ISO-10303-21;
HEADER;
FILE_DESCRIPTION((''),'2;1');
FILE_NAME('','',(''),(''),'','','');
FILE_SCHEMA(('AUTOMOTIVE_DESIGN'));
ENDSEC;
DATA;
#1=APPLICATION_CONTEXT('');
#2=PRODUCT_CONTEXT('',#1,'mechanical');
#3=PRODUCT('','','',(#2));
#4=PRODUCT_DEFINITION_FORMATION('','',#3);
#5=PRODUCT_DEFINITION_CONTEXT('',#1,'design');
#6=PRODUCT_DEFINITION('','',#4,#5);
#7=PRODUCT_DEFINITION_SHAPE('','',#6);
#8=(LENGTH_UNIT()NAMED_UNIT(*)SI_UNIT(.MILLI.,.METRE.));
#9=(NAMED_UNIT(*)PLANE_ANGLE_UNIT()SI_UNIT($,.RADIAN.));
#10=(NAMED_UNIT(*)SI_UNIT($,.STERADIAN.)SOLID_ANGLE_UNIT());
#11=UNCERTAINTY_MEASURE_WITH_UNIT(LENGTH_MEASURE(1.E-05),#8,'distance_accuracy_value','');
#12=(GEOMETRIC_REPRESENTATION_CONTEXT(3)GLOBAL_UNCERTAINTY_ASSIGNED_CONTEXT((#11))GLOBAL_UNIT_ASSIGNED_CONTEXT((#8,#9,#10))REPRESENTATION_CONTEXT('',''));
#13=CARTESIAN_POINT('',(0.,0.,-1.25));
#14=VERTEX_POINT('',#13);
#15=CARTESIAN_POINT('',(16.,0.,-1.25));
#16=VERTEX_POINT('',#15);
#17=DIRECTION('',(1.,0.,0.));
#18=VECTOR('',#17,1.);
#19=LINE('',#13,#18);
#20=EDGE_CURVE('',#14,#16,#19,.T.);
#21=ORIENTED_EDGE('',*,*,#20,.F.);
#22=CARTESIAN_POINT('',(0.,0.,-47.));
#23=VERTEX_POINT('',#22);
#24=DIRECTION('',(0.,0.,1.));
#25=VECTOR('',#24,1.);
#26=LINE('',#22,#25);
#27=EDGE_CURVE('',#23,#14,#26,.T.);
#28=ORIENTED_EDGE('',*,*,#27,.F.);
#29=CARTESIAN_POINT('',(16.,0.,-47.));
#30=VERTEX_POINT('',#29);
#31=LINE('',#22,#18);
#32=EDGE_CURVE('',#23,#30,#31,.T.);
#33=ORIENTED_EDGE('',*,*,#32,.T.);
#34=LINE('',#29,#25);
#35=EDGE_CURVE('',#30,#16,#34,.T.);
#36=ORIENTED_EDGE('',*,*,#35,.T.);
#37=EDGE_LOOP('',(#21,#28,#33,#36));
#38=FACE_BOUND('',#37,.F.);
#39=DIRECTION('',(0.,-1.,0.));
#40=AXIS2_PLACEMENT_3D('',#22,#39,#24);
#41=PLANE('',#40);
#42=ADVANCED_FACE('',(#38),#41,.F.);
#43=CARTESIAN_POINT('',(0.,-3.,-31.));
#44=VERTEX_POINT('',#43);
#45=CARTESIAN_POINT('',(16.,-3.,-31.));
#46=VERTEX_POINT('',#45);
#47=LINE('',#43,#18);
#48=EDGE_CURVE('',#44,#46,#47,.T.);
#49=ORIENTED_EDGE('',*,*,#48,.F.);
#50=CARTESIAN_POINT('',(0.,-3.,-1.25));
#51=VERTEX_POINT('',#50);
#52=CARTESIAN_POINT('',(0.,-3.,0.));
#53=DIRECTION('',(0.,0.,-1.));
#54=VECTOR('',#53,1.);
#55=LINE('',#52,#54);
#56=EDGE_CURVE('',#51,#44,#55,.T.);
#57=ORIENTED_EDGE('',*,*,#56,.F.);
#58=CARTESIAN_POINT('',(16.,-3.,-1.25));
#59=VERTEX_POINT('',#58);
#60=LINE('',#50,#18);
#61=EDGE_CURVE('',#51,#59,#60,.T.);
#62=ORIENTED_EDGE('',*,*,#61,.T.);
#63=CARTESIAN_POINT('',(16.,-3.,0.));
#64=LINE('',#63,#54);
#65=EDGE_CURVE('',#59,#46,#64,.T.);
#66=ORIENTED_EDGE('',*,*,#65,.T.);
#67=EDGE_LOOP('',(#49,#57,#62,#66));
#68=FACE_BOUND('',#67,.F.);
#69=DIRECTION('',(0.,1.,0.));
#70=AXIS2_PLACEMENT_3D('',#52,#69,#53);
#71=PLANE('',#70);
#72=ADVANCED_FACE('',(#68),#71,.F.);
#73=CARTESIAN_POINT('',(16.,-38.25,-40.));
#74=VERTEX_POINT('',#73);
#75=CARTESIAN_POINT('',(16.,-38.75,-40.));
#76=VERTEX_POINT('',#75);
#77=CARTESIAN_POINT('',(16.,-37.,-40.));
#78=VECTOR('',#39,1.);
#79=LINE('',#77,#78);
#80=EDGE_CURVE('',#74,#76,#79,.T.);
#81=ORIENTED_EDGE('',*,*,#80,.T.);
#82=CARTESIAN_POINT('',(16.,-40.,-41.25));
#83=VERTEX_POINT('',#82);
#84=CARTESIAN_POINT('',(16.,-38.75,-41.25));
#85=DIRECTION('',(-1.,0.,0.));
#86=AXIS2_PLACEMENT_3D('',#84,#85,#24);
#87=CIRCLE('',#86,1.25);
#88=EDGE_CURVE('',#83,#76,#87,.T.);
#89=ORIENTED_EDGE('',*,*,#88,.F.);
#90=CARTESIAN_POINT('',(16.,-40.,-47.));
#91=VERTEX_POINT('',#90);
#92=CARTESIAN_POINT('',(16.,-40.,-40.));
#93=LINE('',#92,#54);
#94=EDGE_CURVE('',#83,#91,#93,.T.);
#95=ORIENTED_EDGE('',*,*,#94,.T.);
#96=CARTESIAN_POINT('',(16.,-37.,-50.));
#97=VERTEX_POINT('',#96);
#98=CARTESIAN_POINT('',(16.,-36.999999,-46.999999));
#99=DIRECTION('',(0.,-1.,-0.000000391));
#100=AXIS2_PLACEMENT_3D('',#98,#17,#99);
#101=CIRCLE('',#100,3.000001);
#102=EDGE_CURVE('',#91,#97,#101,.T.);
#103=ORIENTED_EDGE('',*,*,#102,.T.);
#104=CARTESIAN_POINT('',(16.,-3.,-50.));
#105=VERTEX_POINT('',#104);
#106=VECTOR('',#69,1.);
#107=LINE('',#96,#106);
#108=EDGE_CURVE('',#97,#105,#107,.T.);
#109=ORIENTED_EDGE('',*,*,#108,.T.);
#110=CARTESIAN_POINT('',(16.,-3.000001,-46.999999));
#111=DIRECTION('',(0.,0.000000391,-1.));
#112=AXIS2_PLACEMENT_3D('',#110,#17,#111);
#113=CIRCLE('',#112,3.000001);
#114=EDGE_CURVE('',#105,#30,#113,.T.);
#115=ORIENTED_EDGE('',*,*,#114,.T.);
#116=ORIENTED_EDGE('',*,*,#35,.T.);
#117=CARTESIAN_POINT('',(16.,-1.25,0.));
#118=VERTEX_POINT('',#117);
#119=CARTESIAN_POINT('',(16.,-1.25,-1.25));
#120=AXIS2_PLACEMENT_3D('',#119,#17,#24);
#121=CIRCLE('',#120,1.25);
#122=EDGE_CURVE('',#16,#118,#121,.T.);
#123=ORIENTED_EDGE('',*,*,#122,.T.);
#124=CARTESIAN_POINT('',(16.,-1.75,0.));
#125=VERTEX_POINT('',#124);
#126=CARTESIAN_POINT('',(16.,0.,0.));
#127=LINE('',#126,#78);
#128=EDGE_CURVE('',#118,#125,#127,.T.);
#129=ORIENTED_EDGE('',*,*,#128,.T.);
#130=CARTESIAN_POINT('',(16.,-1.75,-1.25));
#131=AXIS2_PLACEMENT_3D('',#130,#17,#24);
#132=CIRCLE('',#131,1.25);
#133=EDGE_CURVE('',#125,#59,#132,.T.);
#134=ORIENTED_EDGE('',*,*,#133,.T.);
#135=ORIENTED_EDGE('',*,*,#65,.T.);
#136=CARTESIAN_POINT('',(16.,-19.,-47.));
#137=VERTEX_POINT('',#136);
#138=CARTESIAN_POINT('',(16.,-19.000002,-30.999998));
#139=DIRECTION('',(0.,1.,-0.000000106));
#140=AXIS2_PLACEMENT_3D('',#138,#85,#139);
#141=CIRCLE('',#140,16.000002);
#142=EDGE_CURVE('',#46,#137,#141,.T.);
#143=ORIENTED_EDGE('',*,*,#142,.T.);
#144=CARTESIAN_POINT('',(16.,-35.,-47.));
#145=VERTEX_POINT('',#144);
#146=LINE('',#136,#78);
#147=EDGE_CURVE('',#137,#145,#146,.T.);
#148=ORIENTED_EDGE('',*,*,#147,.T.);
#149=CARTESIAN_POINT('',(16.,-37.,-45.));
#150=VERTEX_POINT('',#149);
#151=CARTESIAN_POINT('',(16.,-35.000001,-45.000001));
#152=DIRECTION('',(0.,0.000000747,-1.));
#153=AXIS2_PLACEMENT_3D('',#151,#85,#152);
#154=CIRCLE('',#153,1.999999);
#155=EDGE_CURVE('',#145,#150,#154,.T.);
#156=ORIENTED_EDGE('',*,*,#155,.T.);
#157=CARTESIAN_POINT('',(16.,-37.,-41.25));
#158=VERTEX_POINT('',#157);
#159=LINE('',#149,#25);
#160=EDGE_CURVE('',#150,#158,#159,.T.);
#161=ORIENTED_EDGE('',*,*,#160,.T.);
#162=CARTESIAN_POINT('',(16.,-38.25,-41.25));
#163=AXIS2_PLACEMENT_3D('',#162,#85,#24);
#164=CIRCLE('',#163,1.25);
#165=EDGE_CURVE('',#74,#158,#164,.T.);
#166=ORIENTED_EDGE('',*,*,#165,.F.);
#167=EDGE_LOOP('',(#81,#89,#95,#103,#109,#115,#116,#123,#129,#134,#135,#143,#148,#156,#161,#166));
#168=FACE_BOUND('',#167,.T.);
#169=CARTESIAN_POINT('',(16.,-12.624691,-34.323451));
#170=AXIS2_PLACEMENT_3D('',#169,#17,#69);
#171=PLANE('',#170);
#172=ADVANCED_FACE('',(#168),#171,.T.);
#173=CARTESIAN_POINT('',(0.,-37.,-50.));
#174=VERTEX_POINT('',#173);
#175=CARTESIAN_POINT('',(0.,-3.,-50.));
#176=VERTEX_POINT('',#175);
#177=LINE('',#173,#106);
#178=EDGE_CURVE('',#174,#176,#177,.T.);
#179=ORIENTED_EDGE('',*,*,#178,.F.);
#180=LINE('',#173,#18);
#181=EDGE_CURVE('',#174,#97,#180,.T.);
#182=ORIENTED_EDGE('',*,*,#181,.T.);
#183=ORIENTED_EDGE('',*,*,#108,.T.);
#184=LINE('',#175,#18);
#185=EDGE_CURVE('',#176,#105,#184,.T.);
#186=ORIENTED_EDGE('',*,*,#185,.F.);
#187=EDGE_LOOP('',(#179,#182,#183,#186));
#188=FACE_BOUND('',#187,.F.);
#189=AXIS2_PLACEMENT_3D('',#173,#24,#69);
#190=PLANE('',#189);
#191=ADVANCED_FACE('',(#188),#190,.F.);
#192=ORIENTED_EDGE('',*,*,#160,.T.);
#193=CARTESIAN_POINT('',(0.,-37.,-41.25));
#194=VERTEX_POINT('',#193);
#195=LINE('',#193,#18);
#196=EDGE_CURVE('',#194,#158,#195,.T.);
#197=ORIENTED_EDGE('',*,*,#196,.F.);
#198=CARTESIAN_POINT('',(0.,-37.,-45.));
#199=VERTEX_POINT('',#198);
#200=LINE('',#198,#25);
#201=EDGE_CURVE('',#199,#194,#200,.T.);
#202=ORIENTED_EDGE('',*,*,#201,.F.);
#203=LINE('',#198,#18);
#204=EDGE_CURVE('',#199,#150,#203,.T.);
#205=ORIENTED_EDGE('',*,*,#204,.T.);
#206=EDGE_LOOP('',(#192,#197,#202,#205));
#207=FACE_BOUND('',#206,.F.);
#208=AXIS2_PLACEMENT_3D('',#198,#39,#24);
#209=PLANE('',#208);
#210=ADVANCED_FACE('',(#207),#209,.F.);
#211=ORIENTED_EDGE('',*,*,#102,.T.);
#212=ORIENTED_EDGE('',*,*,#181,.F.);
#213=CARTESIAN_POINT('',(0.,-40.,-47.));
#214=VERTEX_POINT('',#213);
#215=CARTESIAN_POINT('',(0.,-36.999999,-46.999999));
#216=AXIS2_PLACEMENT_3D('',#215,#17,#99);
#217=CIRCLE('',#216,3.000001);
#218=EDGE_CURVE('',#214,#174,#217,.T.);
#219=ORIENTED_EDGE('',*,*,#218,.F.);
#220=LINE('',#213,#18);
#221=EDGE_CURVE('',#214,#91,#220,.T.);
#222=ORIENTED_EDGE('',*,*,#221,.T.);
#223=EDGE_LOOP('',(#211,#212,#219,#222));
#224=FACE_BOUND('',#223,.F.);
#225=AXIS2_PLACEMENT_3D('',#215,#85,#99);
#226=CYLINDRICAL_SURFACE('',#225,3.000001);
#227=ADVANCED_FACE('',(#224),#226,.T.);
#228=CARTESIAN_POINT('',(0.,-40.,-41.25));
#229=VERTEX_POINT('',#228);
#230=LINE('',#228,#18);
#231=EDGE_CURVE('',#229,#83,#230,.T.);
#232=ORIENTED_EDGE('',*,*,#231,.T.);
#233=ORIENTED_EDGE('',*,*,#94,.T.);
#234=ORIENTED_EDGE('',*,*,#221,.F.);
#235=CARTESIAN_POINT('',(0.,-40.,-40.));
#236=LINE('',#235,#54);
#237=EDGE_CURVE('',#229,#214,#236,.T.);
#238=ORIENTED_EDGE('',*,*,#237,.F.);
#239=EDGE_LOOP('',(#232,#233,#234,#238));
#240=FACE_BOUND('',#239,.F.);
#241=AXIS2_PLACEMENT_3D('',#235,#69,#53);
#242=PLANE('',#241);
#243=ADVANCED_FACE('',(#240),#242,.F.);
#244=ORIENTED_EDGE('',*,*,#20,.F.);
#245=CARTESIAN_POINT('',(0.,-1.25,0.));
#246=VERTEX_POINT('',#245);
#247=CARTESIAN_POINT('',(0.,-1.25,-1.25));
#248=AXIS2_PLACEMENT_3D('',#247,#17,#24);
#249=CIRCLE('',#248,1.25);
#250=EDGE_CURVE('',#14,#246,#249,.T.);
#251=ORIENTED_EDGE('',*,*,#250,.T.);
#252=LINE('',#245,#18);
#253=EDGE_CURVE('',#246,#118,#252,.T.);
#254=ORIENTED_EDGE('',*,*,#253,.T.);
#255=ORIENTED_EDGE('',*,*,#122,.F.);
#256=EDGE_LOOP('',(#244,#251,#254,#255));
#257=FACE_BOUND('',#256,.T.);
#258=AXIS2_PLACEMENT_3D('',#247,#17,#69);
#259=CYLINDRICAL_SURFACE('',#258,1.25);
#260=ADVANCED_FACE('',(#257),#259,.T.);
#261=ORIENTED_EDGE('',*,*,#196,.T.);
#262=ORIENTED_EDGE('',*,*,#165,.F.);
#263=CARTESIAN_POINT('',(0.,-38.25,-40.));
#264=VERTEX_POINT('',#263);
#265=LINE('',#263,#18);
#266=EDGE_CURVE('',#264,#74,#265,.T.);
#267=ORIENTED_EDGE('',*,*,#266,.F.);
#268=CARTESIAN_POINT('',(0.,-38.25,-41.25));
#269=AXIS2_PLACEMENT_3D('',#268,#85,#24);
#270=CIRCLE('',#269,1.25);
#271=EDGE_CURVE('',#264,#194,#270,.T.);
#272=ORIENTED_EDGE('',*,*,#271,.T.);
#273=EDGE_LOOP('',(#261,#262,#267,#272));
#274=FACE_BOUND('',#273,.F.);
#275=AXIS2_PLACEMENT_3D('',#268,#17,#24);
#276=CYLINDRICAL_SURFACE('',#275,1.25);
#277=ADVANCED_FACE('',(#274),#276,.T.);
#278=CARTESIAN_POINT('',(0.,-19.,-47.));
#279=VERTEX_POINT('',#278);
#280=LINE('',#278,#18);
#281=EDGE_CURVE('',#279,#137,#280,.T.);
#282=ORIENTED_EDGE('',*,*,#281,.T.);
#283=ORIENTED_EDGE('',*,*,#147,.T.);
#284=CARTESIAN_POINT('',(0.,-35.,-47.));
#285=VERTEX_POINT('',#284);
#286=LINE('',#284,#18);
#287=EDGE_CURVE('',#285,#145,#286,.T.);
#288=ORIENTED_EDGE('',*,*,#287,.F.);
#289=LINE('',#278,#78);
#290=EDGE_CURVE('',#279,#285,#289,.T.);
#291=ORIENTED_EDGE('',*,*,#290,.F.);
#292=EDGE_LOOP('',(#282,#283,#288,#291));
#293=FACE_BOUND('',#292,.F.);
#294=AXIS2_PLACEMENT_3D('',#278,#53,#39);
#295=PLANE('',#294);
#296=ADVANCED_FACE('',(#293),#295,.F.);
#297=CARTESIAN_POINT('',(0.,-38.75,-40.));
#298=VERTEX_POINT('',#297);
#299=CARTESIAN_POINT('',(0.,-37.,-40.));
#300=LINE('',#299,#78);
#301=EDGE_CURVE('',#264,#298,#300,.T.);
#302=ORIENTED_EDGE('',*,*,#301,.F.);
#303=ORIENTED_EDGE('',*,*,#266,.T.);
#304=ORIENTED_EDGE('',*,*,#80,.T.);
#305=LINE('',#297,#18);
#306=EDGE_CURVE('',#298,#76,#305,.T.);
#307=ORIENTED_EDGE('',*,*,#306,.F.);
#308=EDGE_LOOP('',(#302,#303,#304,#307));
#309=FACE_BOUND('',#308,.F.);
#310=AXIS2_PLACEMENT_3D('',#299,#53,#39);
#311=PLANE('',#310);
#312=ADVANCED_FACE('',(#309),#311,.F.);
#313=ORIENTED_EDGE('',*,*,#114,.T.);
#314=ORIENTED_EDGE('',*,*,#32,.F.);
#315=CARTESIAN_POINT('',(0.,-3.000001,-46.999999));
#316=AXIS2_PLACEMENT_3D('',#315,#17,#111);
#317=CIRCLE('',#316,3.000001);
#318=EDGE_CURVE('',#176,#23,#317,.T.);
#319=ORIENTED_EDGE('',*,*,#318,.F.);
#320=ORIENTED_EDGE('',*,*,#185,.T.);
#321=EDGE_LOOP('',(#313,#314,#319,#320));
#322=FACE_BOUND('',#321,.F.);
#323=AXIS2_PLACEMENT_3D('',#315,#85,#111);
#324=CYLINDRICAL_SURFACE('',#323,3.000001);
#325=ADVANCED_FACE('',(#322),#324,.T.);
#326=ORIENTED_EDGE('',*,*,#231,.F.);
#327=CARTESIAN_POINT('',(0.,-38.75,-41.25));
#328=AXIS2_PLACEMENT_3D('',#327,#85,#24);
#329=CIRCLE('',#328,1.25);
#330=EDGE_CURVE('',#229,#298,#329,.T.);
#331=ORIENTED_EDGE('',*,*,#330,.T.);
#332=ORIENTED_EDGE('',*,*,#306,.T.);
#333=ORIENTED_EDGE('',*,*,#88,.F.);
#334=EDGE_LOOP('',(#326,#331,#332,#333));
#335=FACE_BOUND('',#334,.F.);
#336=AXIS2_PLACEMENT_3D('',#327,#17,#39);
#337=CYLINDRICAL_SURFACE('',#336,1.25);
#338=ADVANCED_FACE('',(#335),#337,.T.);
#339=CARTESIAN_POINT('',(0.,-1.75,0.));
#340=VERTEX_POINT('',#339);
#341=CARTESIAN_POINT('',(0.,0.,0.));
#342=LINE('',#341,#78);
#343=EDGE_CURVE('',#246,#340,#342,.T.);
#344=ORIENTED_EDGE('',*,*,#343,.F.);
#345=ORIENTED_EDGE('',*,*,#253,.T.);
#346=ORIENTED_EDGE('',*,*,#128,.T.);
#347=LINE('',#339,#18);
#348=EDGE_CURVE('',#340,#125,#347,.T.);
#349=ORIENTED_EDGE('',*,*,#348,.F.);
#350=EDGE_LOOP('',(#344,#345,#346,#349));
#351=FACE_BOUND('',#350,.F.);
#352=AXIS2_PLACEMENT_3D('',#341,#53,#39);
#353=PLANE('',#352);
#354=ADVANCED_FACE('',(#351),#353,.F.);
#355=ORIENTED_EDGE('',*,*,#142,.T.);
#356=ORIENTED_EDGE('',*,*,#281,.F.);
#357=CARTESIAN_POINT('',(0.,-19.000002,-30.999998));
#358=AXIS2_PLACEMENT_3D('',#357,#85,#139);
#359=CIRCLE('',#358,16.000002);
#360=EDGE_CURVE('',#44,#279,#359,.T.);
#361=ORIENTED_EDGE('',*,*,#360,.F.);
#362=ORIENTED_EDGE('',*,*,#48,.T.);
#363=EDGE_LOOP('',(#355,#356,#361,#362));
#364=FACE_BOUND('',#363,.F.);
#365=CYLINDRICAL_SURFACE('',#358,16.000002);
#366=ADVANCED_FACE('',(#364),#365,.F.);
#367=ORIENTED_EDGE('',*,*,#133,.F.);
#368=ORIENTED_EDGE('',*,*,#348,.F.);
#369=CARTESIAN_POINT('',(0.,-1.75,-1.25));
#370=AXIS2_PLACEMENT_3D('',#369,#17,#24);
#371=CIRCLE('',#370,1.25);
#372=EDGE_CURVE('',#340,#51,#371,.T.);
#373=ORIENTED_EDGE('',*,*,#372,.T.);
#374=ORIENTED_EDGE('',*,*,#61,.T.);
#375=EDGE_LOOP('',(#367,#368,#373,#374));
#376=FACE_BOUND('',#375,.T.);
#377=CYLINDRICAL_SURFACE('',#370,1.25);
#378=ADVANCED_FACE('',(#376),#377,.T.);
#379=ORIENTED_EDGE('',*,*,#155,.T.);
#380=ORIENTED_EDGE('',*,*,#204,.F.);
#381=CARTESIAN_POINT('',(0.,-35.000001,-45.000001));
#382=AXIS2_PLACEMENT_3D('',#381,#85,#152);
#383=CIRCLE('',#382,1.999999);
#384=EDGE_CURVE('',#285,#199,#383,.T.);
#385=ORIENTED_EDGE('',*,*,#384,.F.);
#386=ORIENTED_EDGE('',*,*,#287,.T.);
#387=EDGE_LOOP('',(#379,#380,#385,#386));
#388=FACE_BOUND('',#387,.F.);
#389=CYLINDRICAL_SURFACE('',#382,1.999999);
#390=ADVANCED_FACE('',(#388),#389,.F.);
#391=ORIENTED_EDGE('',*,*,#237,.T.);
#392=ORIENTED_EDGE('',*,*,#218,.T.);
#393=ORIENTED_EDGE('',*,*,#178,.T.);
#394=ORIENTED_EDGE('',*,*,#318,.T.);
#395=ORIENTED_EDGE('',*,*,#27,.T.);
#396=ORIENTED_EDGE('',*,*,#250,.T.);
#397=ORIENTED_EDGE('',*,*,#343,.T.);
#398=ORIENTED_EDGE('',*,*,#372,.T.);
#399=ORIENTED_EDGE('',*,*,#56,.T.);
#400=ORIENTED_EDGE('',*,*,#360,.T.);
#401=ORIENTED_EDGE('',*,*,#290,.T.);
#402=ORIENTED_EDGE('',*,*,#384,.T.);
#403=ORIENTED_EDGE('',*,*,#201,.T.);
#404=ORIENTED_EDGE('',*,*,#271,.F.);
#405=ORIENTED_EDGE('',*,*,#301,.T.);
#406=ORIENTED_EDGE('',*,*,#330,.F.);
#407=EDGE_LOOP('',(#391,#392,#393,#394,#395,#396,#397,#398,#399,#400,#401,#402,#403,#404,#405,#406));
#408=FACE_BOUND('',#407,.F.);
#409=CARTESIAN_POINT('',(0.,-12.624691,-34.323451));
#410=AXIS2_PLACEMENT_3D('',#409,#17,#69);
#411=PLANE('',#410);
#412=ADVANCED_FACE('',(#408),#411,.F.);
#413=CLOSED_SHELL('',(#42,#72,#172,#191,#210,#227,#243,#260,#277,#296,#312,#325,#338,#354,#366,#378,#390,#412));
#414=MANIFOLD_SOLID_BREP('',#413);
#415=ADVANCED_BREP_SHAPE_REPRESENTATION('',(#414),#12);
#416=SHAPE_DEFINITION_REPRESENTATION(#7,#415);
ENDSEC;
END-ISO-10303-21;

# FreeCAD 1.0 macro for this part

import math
import FreeCAD as App
import Part
import Sketcher
Q = App.Units.Quantity


def edges_at(feature, points):
    """Names of the edges that pass closest to the given points."""
    edges = feature.Shape.Edges
    near = lambda p: min(range(len(edges)), key=lambda i: edges[i].distToShape(Part.Vertex(*p))[0])
    return sorted({f"Edge{near(p) + 1}" for p in points})

doc = App.newDocument("Part")
body = doc.addObject("PartDesign::Body", "Body")

# Sketch on YZ plane
sketch1 = body.newObject("Sketcher::SketchObject", "Sketch")
sketch1.AttachmentSupport = (doc.getObject("YZ_Plane"), [""])
sketch1.MapMode = "FlatFace"
sketch1.addGeometry([
    Part.LineSegment(App.Vector(0, -47, 0), App.Vector(0, 0, 0)),  # 0
    Part.LineSegment(App.Vector(0, 0, 0), App.Vector(-3, 0, 0)),  # 1
    Part.LineSegment(App.Vector(-3, 0, 0), App.Vector(-3, -31, 0)),  # 2
    Part.ArcOfCircle(Part.Circle(App.Vector(-19, -31, 0), App.Vector(0, 0, 1), 16), math.radians(-90), math.radians(0)),  # 3
    Part.LineSegment(App.Vector(-19, -47, 0), App.Vector(-35, -47, 0)),  # 4
    Part.ArcOfCircle(Part.Circle(App.Vector(-35, -45, 0), App.Vector(0, 0, 1), 2), math.radians(180), math.radians(270)),  # 5
    Part.LineSegment(App.Vector(-37, -45, 0), App.Vector(-37, -40, 0)),  # 6
    Part.LineSegment(App.Vector(-37, -40, 0), App.Vector(-40, -40, 0)),  # 7
    Part.LineSegment(App.Vector(-40, -40, 0), App.Vector(-40, -47, 0)),  # 8
    Part.ArcOfCircle(Part.Circle(App.Vector(-37, -47, 0), App.Vector(0, 0, 1), 3), math.radians(-180), math.radians(-90)),  # 9
    Part.LineSegment(App.Vector(-37, -50, 0), App.Vector(-3, -50, 0)),  # 10
    Part.ArcOfCircle(Part.Circle(App.Vector(-3, -47, 0), App.Vector(0, 0, 1), 3), math.radians(-90), math.radians(0)),  # 11
], False)
sketch1.addConstraint([
    Sketcher.Constraint("Coincident", 0, 2, 1, 1),
    Sketcher.Constraint("Coincident", 1, 2, 2, 1),
    Sketcher.Constraint("Tangent", 2, 2, 3, 2),
    Sketcher.Constraint("Tangent", 3, 1, 4, 1),
    Sketcher.Constraint("Tangent", 4, 2, 5, 2),
    Sketcher.Constraint("Tangent", 5, 1, 6, 1),
    Sketcher.Constraint("Coincident", 6, 2, 7, 1),
    Sketcher.Constraint("Coincident", 7, 2, 8, 1),
    Sketcher.Constraint("Tangent", 8, 2, 9, 1),
    Sketcher.Constraint("Tangent", 9, 2, 10, 1),
    Sketcher.Constraint("Tangent", 10, 2, 11, 1),
    Sketcher.Constraint("Tangent", 11, 2, 0, 1),
    Sketcher.Constraint("Vertical", 0),
    Sketcher.Constraint("Horizontal", 1),
    Sketcher.Constraint("Vertical", 2),
    Sketcher.Constraint("Horizontal", 4),
    Sketcher.Constraint("Vertical", 6),
    Sketcher.Constraint("Horizontal", 7),
    Sketcher.Constraint("Vertical", 8),
    Sketcher.Constraint("Horizontal", 10),
    Sketcher.Constraint("Coincident", 0, 2, -1, 1),
    Sketcher.Constraint("Equal", 9, 11),
    Sketcher.Constraint("Horizontal", 11, 3, 3, 1),
    Sketcher.Constraint("Vertical", 11, 3, 1, 2),
    Sketcher.Constraint("Vertical", 9, 3, 5, 1),
    Sketcher.Constraint("Radius", 3, Q("16.000002 mm")),
    Sketcher.Constraint("Radius", 5, Q("1.999999 mm")),
    Sketcher.Constraint("Radius", 9, Q("3.000001 mm")),
    Sketcher.Constraint("DistanceX", 4, 2, 4, 1, Q("16 mm")),
    Sketcher.Constraint("DistanceY", 0, 1, 0, 2, Q("47 mm")),
    Sketcher.Constraint("DistanceY", 6, 1, 6, 2, Q("5 mm")),
])
pad1 = body.newObject("PartDesign::Pad", "Pad")
pad1.Profile = sketch1
pad1.Length = 16
doc.recompute()

fillet = body.newObject("PartDesign::Fillet", "Fillet")
fillet.Base = (pad1, edges_at(pad1, [(8, 0, 0), (8, -3, 0)]))
fillet.Radius = 1.25
doc.recompute()

fillet2 = body.newObject("PartDesign::Fillet", "Fillet001")
fillet2.Base = (fillet, edges_at(fillet, [(8, -37, -40), (8, -40, -40)]))
fillet2.Radius = 1.25

doc.recompute()
